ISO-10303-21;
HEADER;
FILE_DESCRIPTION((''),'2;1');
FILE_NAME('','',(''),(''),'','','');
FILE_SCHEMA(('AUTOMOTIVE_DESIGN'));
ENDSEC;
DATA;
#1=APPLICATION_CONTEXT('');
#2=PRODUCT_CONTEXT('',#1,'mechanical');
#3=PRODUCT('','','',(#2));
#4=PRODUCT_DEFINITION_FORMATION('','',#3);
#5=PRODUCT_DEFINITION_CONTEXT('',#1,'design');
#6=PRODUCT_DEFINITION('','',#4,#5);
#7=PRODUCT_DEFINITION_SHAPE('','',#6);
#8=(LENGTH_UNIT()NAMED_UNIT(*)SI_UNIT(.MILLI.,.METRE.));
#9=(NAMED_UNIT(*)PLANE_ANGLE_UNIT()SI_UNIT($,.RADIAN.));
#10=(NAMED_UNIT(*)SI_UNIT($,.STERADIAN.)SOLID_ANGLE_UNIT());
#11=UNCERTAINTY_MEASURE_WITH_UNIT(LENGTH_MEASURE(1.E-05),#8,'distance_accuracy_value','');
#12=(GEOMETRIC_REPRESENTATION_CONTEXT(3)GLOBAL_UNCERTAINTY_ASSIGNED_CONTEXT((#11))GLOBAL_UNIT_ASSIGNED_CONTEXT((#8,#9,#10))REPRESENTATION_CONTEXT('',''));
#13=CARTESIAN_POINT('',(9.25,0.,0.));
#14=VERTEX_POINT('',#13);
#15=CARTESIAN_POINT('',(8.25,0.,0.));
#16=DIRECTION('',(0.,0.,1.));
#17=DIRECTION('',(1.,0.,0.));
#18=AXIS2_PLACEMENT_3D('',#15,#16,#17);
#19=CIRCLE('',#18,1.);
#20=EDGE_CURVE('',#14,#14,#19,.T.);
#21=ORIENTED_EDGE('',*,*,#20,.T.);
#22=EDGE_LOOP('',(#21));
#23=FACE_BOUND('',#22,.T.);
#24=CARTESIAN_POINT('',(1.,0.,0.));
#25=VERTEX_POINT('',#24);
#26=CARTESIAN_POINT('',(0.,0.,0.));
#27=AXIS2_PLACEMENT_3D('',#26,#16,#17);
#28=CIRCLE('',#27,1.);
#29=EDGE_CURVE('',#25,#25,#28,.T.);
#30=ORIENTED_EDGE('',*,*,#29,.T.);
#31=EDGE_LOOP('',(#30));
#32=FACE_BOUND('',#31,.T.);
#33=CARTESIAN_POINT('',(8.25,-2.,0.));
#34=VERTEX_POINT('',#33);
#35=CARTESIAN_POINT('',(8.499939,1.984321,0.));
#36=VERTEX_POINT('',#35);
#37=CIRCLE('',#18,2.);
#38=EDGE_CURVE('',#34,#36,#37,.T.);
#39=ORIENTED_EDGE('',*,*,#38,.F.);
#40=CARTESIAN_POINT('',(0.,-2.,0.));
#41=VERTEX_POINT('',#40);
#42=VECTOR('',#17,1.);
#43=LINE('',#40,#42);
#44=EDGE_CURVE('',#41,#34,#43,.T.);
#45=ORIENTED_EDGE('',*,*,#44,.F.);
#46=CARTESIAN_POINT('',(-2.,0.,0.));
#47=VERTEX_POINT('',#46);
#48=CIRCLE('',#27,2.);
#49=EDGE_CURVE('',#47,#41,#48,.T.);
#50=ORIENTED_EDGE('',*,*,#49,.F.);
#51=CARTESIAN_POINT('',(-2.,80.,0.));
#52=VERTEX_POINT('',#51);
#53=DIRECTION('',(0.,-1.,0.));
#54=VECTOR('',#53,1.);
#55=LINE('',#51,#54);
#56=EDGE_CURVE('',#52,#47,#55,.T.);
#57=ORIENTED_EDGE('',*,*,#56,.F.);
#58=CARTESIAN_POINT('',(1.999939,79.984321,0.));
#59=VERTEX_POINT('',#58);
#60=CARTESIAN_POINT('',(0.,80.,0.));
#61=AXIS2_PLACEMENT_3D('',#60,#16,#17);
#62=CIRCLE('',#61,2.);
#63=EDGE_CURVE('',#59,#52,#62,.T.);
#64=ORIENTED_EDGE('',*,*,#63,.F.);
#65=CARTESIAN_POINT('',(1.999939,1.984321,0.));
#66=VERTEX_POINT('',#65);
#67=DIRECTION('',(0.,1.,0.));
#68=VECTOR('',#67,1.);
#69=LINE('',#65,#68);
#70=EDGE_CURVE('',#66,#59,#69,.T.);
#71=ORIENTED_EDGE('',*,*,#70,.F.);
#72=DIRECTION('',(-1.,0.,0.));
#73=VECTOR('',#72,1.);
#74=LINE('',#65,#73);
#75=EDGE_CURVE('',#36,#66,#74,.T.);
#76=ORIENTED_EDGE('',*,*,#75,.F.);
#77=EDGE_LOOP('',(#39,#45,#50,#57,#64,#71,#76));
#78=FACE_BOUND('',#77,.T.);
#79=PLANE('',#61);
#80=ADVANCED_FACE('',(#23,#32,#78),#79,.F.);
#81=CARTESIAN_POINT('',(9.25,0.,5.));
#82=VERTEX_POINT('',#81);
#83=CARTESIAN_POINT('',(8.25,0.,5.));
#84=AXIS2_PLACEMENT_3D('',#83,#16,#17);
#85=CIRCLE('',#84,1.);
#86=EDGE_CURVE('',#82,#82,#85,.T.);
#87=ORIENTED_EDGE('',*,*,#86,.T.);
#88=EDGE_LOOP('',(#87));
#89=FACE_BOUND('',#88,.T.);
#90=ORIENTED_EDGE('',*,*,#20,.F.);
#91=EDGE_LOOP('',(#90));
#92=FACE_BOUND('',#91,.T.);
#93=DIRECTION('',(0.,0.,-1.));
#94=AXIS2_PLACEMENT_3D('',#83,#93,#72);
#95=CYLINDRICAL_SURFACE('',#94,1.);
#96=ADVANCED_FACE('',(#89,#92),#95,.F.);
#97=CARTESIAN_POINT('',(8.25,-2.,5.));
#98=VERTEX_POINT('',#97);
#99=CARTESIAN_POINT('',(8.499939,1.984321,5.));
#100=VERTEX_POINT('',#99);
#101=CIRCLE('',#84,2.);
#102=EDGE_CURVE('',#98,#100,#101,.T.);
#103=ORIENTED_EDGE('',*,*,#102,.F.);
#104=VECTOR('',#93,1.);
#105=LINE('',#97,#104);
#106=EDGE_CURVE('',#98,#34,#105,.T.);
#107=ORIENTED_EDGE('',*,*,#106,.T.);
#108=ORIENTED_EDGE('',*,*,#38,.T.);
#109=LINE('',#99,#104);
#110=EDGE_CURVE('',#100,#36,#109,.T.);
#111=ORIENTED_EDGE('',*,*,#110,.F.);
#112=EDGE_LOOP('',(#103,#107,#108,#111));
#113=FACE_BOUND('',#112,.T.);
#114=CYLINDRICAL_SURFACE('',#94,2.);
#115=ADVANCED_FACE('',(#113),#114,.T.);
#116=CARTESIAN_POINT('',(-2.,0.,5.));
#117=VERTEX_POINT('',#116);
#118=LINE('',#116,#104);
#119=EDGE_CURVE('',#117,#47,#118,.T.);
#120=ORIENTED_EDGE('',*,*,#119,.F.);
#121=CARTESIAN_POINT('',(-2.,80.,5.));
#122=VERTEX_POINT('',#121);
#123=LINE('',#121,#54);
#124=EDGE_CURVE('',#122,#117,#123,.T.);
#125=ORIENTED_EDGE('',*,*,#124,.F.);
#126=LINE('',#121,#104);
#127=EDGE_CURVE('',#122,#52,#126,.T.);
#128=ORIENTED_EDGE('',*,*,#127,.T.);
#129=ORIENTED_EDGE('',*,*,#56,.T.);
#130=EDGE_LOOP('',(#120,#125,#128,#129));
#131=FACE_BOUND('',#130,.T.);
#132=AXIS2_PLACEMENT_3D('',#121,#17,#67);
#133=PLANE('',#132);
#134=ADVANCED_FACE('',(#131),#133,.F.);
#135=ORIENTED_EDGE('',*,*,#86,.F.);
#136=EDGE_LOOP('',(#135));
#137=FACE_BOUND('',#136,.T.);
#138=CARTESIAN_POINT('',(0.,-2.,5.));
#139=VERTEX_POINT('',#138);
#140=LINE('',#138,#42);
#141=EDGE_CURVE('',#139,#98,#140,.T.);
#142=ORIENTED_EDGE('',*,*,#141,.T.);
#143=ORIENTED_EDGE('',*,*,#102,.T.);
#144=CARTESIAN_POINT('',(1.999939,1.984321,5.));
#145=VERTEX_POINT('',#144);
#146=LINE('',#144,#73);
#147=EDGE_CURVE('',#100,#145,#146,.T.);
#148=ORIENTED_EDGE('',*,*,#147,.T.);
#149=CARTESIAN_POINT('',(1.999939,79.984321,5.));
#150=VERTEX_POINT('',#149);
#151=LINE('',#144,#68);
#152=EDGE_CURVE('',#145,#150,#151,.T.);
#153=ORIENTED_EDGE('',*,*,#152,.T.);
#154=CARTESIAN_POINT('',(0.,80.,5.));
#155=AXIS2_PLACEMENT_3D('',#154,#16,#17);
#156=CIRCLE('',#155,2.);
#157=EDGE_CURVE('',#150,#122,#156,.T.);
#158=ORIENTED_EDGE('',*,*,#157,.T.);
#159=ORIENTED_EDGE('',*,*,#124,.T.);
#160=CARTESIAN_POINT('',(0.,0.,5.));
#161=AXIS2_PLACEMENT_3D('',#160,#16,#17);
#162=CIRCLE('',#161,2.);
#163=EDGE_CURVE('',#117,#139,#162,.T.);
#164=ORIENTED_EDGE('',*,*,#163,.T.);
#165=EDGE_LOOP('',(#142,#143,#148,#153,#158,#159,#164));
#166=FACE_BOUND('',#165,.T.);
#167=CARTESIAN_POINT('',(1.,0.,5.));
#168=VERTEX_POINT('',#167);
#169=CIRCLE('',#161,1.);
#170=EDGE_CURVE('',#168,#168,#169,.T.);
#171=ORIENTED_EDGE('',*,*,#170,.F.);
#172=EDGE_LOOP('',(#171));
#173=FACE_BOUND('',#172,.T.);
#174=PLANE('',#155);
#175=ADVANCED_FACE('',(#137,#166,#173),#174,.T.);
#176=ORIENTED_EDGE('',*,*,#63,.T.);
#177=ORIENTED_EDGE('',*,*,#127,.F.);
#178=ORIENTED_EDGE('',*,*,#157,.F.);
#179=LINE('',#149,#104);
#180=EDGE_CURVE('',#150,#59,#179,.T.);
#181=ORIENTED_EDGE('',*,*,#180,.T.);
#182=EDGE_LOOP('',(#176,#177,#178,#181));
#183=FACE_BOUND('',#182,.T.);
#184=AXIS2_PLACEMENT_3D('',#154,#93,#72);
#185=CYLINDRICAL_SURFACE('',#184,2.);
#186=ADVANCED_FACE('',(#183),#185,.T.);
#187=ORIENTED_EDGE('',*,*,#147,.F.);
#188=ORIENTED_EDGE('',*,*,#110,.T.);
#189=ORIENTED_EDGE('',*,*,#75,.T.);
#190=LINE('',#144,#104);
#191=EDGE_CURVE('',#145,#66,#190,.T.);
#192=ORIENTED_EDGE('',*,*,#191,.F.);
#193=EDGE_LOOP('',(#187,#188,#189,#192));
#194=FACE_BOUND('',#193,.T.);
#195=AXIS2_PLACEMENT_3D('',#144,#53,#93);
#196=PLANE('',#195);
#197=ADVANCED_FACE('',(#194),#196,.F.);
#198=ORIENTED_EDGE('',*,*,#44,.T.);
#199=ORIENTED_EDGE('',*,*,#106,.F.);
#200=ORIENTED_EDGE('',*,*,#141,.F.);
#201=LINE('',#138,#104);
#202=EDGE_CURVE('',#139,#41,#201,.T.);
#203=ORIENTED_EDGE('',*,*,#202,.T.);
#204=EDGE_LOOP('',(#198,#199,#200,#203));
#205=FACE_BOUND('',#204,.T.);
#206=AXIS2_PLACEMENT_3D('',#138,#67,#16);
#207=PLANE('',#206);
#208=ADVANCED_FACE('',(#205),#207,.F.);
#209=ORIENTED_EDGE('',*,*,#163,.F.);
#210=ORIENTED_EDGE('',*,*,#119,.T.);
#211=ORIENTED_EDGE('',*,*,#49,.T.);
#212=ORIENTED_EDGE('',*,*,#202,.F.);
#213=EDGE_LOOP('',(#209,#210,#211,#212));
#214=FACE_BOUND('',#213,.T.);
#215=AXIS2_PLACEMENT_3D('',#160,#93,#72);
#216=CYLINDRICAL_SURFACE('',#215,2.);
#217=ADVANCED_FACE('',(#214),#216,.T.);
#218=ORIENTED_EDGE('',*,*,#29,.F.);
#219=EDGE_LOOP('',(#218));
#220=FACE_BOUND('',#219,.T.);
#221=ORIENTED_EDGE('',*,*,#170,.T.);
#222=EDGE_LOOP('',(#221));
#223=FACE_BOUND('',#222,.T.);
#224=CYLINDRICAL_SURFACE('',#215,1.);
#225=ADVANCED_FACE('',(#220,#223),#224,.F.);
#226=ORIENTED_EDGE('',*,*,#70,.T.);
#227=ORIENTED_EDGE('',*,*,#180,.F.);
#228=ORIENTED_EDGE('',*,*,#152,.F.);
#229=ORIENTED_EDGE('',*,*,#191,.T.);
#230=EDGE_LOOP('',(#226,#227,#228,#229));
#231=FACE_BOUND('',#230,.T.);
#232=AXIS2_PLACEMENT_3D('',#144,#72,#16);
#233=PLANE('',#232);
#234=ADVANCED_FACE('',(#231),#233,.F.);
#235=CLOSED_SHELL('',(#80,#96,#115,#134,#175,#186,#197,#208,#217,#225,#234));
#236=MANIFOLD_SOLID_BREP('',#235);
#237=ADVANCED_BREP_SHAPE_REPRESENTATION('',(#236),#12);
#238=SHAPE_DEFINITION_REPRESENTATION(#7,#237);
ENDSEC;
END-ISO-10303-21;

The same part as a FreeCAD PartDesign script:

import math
import FreeCAD as App
import Part
import Sketcher
from FreeCAD import Vector
Q = App.Units.Quantity

doc = App.newDocument("Part")
params = doc.addObject("Spreadsheet::Sheet", "Params")
for row, (alias, value) in enumerate([
    ("sketch1_diameter", "2 mm"),
    ("sketch1_radius", "2 mm"),
    ("sketch1_height", "80 mm"),
    ("sketch1_height2", "78 mm"),
    ("sketch1_width", "6.5 mm"),
    ("pad1_length", "5 mm"),
], start=1):
    params.set(f"A{row}", alias)
    params.set(f"B{row}", "=" + value)
    params.setAlias(f"B{row}", alias)

body = doc.addObject("PartDesign::Body", "Body")

# Sketch on XY plane
sketch1 = body.newObject("Sketcher::SketchObject", "Sketch")
sketch1.AttachmentSupport = (doc.getObject("XY_Plane"), [""])
sketch1.MapMode = "FlatFace"
sketch1.addGeometry([
    Part.LineSegment(Vector(-2, 80, 0), Vector(-2, 0, 0)),  # 0
    Part.ArcOfCircle(Part.Circle(Vector(0, 0, 0), Vector(0, 0, 1), 2), math.radians(-180), math.radians(-90)),  # 1
    Part.LineSegment(Vector(0, -2, 0), Vector(8.2, -2, 0)),  # 2
    Part.ArcOfCircle(Part.Circle(Vector(8.2, 0, 0), Vector(0, 0, 1), 2), math.radians(-90), math.radians(83)),  # 3
    Part.LineSegment(Vector(8.5, 2, 0), Vector(2, 2, 0)),  # 4
    Part.LineSegment(Vector(2, 2, 0), Vector(2, 80, 0)),  # 5
    Part.ArcOfCircle(Part.Circle(Vector(0, 80, 0), Vector(0, 0, 1), 2), math.radians(0), math.radians(180)),  # 6
    Part.Circle(Vector(0, 0, 0), Vector(0, 0, 1), 1),  # 7
    Part.Circle(Vector(8.2, 0, 0), Vector(0, 0, 1), 1),  # 8
], False)
sketch1.addConstraint([
    Sketcher.Constraint("Tangent", 0, 2, 1, 1),
    Sketcher.Constraint("Tangent", 1, 2, 2, 1),
    Sketcher.Constraint("Tangent", 2, 2, 3, 1),
    Sketcher.Constraint("Coincident", 3, 2, 4, 1),
    Sketcher.Constraint("Coincident", 4, 2, 5, 1),
    Sketcher.Constraint("Coincident", 5, 2, 6, 1),
    Sketcher.Constraint("Tangent", 6, 2, 0, 1),
    Sketcher.Constraint("Vertical", 0),
    Sketcher.Constraint("Horizontal", 2),
    Sketcher.Constraint("Horizontal", 4),
    Sketcher.Constraint("Vertical", 5),
    Sketcher.Constraint("Coincident", 1, 3, -1, 1),
    Sketcher.Constraint("Coincident", 7, 3, -1, 1),
    Sketcher.Constraint("Coincident", 8, 3, 3, 3),
    Sketcher.Constraint("Equal", 1, 3),
    Sketcher.Constraint("Equal", 3, 6),
    Sketcher.Constraint("Equal", 7, 8),
    Sketcher.Constraint("Diameter", 7, Q("2 mm")),
    Sketcher.Constraint("Radius", 1, Q("2 mm")),
    Sketcher.Constraint("DistanceY", 0, 2, 0, 1, Q("80 mm")),
    Sketcher.Constraint("DistanceY", 5, 1, 5, 2, Q("78 mm")),
    Sketcher.Constraint("DistanceX", 4, 2, 4, 1, Q("6.5 mm")),
    Sketcher.Constraint("DistanceX", 2, 1, 2, 2, Q("8.25 mm")),
])
sketch1.setExpression("Constraints[17]", "Params.sketch1_diameter")
sketch1.setExpression("Constraints[18]", "Params.sketch1_radius")
sketch1.setExpression("Constraints[19]", "Params.sketch1_height")
sketch1.setExpression("Constraints[20]", "Params.sketch1_height2")
sketch1.setExpression("Constraints[21]", "Params.sketch1_width")
pad1 = body.newObject("PartDesign::Pad", "Pad")
pad1.Profile = sketch1
pad1.setExpression("Length", "Params.pad1_length")

doc.recompute()
